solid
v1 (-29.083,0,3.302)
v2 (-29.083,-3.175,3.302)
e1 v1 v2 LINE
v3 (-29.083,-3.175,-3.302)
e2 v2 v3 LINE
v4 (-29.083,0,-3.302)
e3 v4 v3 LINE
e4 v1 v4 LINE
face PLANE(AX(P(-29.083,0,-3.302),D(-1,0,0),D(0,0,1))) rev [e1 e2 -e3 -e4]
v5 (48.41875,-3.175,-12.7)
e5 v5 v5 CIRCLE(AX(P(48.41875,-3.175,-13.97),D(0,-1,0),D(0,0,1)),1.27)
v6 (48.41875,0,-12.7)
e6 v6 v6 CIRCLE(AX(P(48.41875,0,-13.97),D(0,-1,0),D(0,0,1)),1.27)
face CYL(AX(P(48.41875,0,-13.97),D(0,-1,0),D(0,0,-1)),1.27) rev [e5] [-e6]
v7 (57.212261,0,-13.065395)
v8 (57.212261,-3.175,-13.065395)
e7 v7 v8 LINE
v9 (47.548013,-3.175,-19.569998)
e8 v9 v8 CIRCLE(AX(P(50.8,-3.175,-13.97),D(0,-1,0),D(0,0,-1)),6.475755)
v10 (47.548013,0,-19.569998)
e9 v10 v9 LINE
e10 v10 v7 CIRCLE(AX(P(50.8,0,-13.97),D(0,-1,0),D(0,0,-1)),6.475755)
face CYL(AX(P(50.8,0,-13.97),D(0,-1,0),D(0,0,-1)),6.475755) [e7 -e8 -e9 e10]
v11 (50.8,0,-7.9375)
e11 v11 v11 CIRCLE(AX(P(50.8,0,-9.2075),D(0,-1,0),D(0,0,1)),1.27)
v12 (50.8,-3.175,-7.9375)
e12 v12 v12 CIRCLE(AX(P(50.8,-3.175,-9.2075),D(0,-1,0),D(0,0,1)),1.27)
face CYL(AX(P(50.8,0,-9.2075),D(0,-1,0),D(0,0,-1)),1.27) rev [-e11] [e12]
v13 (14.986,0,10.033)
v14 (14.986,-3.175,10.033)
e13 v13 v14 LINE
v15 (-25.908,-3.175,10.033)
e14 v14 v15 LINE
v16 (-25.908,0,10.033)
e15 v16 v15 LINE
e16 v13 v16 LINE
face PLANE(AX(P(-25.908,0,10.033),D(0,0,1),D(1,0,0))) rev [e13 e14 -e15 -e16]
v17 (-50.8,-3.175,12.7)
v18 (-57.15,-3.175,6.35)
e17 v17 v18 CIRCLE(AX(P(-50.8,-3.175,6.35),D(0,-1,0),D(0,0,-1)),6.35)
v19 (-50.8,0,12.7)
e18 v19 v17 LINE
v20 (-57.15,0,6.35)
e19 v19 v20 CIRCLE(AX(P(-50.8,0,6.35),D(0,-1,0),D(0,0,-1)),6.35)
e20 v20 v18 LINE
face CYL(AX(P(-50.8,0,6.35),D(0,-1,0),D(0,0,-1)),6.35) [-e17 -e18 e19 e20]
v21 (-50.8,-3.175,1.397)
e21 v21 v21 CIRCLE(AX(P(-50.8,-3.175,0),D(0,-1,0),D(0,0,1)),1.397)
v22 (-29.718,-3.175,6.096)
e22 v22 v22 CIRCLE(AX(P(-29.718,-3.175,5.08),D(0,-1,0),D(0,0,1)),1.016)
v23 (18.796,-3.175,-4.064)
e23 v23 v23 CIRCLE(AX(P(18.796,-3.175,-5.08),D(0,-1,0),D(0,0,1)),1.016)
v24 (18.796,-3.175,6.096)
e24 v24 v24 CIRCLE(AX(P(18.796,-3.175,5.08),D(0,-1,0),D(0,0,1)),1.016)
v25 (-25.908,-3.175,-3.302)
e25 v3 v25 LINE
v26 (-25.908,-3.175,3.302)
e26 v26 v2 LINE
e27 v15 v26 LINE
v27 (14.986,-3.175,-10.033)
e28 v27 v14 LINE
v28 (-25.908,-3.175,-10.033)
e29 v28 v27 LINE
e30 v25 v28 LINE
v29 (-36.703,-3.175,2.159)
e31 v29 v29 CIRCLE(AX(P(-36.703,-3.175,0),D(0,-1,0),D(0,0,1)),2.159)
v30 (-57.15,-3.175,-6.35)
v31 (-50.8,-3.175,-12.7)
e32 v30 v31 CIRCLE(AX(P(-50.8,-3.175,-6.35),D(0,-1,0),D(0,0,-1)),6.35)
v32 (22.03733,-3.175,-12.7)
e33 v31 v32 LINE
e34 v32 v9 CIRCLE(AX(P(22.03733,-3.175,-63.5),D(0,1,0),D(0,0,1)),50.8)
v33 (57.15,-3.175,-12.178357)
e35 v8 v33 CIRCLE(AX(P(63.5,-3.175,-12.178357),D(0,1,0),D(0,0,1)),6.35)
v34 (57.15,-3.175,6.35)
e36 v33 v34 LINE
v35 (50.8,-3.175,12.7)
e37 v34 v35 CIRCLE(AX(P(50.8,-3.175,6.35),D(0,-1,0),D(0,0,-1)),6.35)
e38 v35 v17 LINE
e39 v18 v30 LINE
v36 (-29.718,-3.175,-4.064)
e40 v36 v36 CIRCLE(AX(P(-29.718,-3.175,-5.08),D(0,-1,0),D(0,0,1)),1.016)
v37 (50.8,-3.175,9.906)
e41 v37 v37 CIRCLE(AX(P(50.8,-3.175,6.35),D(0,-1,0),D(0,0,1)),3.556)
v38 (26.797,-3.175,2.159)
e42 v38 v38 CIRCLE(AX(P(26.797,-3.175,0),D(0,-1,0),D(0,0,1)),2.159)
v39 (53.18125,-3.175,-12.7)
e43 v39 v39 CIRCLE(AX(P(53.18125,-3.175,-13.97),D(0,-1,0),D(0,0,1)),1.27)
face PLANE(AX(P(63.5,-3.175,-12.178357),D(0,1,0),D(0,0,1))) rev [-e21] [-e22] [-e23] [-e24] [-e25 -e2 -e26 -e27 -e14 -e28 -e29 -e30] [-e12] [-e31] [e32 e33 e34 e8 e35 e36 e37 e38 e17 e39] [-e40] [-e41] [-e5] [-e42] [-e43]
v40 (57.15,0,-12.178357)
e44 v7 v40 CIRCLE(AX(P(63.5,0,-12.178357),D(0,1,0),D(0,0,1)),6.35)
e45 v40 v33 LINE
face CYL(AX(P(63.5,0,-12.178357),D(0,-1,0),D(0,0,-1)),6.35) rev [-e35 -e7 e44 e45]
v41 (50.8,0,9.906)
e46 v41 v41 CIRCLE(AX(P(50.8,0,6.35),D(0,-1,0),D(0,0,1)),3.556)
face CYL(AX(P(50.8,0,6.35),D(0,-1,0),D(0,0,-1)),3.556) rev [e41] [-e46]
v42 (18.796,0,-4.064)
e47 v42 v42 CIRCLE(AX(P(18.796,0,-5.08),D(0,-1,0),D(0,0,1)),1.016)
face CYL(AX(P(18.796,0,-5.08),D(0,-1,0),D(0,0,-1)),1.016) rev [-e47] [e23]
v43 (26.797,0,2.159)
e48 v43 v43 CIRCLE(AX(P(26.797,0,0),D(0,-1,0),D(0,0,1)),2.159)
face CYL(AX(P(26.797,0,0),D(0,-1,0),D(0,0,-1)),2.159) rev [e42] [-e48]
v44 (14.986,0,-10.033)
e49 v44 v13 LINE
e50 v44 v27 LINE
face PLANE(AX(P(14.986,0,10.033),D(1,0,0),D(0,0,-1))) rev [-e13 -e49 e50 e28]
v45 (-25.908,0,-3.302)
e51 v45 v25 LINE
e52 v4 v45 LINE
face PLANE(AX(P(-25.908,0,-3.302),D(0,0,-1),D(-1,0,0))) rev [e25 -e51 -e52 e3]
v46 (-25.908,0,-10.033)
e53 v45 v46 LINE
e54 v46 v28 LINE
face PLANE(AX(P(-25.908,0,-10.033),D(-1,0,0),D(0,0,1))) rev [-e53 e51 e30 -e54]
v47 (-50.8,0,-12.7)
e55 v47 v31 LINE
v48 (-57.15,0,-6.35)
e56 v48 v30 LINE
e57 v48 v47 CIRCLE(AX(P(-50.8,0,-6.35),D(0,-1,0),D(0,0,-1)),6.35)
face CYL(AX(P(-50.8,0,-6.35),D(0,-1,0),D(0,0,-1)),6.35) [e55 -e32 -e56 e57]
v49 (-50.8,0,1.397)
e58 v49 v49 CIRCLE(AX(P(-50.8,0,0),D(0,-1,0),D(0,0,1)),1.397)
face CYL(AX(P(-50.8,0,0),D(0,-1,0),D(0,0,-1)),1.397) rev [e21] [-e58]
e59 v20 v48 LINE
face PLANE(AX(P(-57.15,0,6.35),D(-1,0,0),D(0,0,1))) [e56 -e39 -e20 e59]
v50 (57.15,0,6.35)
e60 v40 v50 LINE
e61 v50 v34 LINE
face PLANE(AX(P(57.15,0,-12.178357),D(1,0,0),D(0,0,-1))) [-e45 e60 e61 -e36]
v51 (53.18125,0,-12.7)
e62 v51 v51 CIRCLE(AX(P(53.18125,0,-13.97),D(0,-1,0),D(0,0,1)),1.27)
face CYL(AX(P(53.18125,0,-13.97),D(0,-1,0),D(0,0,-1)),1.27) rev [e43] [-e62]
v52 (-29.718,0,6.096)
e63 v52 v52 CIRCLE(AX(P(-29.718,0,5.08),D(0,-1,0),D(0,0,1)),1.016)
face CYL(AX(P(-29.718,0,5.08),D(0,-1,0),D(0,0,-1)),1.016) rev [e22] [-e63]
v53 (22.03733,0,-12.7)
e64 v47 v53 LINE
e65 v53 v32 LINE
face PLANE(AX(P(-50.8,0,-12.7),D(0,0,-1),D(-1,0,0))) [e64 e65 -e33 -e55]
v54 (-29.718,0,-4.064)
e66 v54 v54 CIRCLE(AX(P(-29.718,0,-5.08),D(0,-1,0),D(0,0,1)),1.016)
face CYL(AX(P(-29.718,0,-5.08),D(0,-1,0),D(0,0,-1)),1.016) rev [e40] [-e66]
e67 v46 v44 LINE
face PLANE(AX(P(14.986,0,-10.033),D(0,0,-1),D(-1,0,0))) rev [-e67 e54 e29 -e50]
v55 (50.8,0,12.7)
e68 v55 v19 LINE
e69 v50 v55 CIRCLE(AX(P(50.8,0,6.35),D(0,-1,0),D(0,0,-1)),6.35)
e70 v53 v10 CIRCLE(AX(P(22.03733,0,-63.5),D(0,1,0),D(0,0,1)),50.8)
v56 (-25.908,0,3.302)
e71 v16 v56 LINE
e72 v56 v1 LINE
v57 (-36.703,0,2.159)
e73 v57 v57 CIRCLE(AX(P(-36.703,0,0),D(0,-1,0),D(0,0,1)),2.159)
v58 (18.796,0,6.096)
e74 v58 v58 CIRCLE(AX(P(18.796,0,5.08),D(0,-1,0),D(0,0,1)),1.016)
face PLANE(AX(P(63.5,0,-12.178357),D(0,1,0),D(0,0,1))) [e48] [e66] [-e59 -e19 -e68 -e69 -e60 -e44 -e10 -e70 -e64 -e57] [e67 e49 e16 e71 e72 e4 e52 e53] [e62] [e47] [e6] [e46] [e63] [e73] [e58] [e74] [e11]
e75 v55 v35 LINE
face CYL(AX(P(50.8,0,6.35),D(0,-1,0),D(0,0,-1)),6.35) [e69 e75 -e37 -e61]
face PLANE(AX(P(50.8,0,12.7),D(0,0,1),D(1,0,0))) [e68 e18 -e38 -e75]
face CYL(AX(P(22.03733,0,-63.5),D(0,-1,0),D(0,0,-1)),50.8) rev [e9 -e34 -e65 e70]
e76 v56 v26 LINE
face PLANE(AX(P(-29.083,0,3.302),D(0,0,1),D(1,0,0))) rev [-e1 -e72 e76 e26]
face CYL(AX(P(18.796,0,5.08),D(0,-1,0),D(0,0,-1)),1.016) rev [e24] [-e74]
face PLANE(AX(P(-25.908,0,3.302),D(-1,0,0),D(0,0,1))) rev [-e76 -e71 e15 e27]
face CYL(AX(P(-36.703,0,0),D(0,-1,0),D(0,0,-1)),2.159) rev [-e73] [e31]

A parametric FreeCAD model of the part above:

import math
import FreeCAD as App
import Part
import Sketcher
Q = App.Units.Quantity


def add_polygon(sketch, points):
    """Adds a closed chain of lines whose ends are joined by coincident constraints."""
    first, n = sketch.GeometryCount, len(points)
    for a, b in zip(points, points[1:] + points[:1]):
        sketch.addGeometry(Part.LineSegment(App.Vector(*a, 0), App.Vector(*b, 0)), False)
    for i in range(n):
        sketch.addConstraint(Sketcher.Constraint("Coincident", first + i, 2, first + (i + 1) % n, 1))

doc = App.newDocument("Part")
body = doc.addObject("PartDesign::Body", "Body")

sketch1 = body.newObject("Sketcher::SketchObject", "Sketch")
sketch1.AttachmentSupport = (doc.getObject("XZ_Plane"), [""])
sketch1.MapMode = "FlatFace"
sketch1.AttachmentOffset = App.Placement(App.Vector(0, 0, 0.125 * 25.4), App.Rotation())
sketch1.addGeometry(Part.LineSegment(App.Vector(57.1, -12.2, 0), App.Vector(57.1, 6.3, 0)), False)
sketch1.addGeometry(Part.ArcOfCircle(Part.Circle(App.Vector(50.8, 6.4, 0), App.Vector(0, 0, 1), 6.3), math.radians(0), math.radians(90)), False)
sketch1.addGeometry(Part.LineSegment(App.Vector(50.8, 12.7, 0), App.Vector(-50.8, 12.7, 0)), False)
sketch1.addGeometry(Part.ArcOfCircle(Part.Circle(App.Vector(-50.8, 6.4, 0), App.Vector(0, 0, 1), 6.3), math.radians(90), math.radians(180)), False)
sketch1.addGeometry(Part.LineSegment(App.Vector(-57.1, 6.3, 0), App.Vector(-57.1, -6.3, 0)), False)
sketch1.addGeometry(Part.ArcOfCircle(Part.Circle(App.Vector(-50.8, -6.4, 0), App.Vector(0, 0, 1), 6.3), math.radians(180), math.radians(270)), False)
sketch1.addGeometry(Part.LineSegment(App.Vector(-50.8, -12.7, 0), App.Vector(22, -12.7, 0)), False)
sketch1.addGeometry(Part.ArcOfCircle(Part.Circle(App.Vector(22, -63.5, 0), App.Vector(0, 0, 1), 50.8), math.radians(60), math.radians(90)), False)
sketch1.addGeometry(Part.ArcOfCircle(Part.Circle(App.Vector(50.8, -14, 0), App.Vector(0, 0, 1), 6.5), math.radians(-120), math.radians(8)), False)
sketch1.addGeometry(Part.ArcOfCircle(Part.Circle(App.Vector(63.5, -12.2, 0), App.Vector(0, 0, 1), 6.3), math.radians(180), math.radians(188.03)), False)
sketch1.addGeometry(Part.Circle(App.Vector(-29.7, -5.1, 0), App.Vector(0, 0, 1), 1), False)
sketch1.addGeometry(Part.Circle(App.Vector(48.4, -14, 0), App.Vector(0, 0, 1), 1.3), False)
sketch1.addGeometry(Part.Circle(App.Vector(53.2, -14, 0), App.Vector(0, 0, 1), 1.3), False)
sketch1.addGeometry(Part.Circle(App.Vector(50.8, -9.2, 0), App.Vector(0, 0, 1), 1.3), False)
sketch1.addGeometry(Part.Circle(App.Vector(18.8, -5.1, 0), App.Vector(0, 0, 1), 1), False)
sketch1.addGeometry(Part.Circle(App.Vector(-50.8, 0, 0), App.Vector(0, 0, 1), 1.4), False)
sketch1.addGeometry(Part.Circle(App.Vector(-36.7, 0, 0), App.Vector(0, 0, 1), 2.2), False)
add_polygon(sketch1, [(-25.9, 3.3), (-25.9, 10), (15, 10), (15, -10), (-25.9, -10), (-25.9, -3.3), (-29.1, -3.3), (-29.1, 3.3)])
sketch1.addGeometry(Part.Circle(App.Vector(-29.7, 5.1, 0), App.Vector(0, 0, 1), 1), False)
sketch1.addGeometry(Part.Circle(App.Vector(26.8, 0, 0), App.Vector(0, 0, 1), 2.2), False)
sketch1.addGeometry(Part.Circle(App.Vector(18.8, 5.1, 0), App.Vector(0, 0, 1), 1), False)
sketch1.addGeometry(Part.Circle(App.Vector(50.8, 6.3, 0), App.Vector(0, 0, 1), 3.6), False)
sketch1.addConstraint([
    Sketcher.Constraint("Tangent", 0, 2, 1, 1),
    Sketcher.Constraint("Tangent", 1, 2, 2, 1),
    Sketcher.Constraint("Tangent", 2, 2, 3, 1),
    Sketcher.Constraint("Tangent", 3, 2, 4, 1),
    Sketcher.Constraint("Tangent", 4, 2, 5, 1),
    Sketcher.Constraint("Tangent", 5, 2, 6, 1),
    Sketcher.Constraint("Tangent", 6, 2, 7, 2),
    Sketcher.Constraint("Tangent", 7, 1, 8, 1),
    Sketcher.Constraint("Tangent", 8, 2, 9, 2),
    Sketcher.Constraint("Tangent", 9, 1, 0, 1),
    Sketcher.Constraint("Vertical", 0),
    Sketcher.Constraint("Horizontal", 2),
    Sketcher.Constraint("Vertical", 4),
    Sketcher.Constraint("Horizontal", 6),
    Sketcher.Constraint("Vertical", 17),
    Sketcher.Constraint("Horizontal", 18),
    Sketcher.Constraint("Vertical", 19),
    Sketcher.Constraint("Horizontal", 20),
    Sketcher.Constraint("Vertical", 21),
    Sketcher.Constraint("Horizontal", 22),
    Sketcher.Constraint("Vertical", 23),
    Sketcher.Constraint("Horizontal", 24),
    Sketcher.Constraint("Coincident", 28, 3, 1, 3),
    Sketcher.Constraint("Equal", 1, 3),
    Sketcher.Constraint("Equal", 3, 5),
    Sketcher.Constraint("Equal", 5, 9),
    Sketcher.Constraint("Equal", 11, 12),
    Sketcher.Constraint("Equal", 12, 13),
    Sketcher.Constraint("Equal", 10, 14),
    Sketcher.Constraint("Equal", 14, 25),
    Sketcher.Constraint("Equal", 16, 26),
    Sketcher.Constraint("Equal", 25, 27),
    Sketcher.Constraint("Symmetric", 1, 3, 5, 3, -1, 1),
    Sketcher.Constraint("Symmetric", 10, 3, 25, 3, -1),
    Sketcher.Constraint("Symmetric", 14, 3, 27, 3, -1),
    Sketcher.Constraint("Symmetric", 17, 2, 20, 2, -1),
    Sketcher.Constraint("PointOnObject", 15, 3, -1),
    Sketcher.Constraint("PointOnObject", 16, 3, -1),
    Sketcher.Constraint("PointOnObject", 26, 3, -1),
    Sketcher.Constraint("Horizontal", 8, 3, 11, 3),
    Sketcher.Constraint("Horizontal", 11, 3, 12, 3),
    Sketcher.Constraint("Horizontal", 10, 3, 14, 3),
    Sketcher.Constraint("Vertical", 1, 3, 8, 3),
    Sketcher.Constraint("Vertical", 8, 3, 13, 3),
    Sketcher.Constraint("Vertical", 5, 3, 15, 3),
    Sketcher.Constraint("Equal", 17, 21),
    Sketcher.Constraint("Radius", 7, Q("2 in")),
    Sketcher.Constraint("Diameter", 11, Q("0.1 in")),
    Sketcher.Constraint("Diameter", 10, Q("0.08 in")),
    Sketcher.Constraint("Diameter", 15, Q("0.11 in")),
    Sketcher.Constraint("Diameter", 16, Q("0.17 in")),
    Sketcher.Constraint("Diameter", 28, Q("0.28 in")),
    Sketcher.Constraint("DistanceX", 2, 2, 2, 1, Q("4 in")),
    Sketcher.Constraint("Radius", 1, Q("0.25 in")),
    Sketcher.Constraint("DistanceY", 4, 2, 4, 1, Q("0.5 in")),
    Sketcher.Constraint("DistanceX", 18, 1, 18, 2, Q("1.61 in")),
    Sketcher.Constraint("DistanceY", 19, 2, 19, 1, Q("0.79 in")),
    Sketcher.Constraint("DistanceY", 23, 1, 23, 2, Q("0.26 in")),
    Sketcher.Constraint("DistanceY", 10, 3, -1, 1, Q("0.2 in")),
    Sketcher.Constraint("DistanceY", 8, 3, 1, 3, Q("0.8 in")),
    Sketcher.Constraint("DistanceX", 16, 3, 22, 2, Q("0.3 in")),
    Sketcher.Constraint("DistanceX", 22, 2, 22, 1, Q("0.125 in")),
    Sketcher.Constraint("DistanceX", 10, 3, -1, 1, Q("1.17 in")),
    Sketcher.Constraint("DistanceX", -1, 1, 14, 3, Q("0.74 in")),
    Sketcher.Constraint("DistanceX", 17, 2, -1, 1, Q("1.02 in")),
    Sketcher.Constraint("DistanceX", -1, 1, 11, 3, Q("1.90625 in")),
    Sketcher.Constraint("DistanceX", -1, 1, 12, 3, Q("2.09375 in")),
    Sketcher.Constraint("DistanceX", -1, 1, 26, 3, Q("1.055 in")),
    Sketcher.Constraint("DistanceY", 8, 3, 13, 3, Q("0.1875 in")),
    Sketcher.Constraint("Radius", 8, Q("6.475755 mm")),
])
pad1 = body.newObject("PartDesign::Pad", "Pad")
pad1.Profile = sketch1
pad1.Length = Q("0.125 in")
pad1.Reversed = True

doc.recompute()
